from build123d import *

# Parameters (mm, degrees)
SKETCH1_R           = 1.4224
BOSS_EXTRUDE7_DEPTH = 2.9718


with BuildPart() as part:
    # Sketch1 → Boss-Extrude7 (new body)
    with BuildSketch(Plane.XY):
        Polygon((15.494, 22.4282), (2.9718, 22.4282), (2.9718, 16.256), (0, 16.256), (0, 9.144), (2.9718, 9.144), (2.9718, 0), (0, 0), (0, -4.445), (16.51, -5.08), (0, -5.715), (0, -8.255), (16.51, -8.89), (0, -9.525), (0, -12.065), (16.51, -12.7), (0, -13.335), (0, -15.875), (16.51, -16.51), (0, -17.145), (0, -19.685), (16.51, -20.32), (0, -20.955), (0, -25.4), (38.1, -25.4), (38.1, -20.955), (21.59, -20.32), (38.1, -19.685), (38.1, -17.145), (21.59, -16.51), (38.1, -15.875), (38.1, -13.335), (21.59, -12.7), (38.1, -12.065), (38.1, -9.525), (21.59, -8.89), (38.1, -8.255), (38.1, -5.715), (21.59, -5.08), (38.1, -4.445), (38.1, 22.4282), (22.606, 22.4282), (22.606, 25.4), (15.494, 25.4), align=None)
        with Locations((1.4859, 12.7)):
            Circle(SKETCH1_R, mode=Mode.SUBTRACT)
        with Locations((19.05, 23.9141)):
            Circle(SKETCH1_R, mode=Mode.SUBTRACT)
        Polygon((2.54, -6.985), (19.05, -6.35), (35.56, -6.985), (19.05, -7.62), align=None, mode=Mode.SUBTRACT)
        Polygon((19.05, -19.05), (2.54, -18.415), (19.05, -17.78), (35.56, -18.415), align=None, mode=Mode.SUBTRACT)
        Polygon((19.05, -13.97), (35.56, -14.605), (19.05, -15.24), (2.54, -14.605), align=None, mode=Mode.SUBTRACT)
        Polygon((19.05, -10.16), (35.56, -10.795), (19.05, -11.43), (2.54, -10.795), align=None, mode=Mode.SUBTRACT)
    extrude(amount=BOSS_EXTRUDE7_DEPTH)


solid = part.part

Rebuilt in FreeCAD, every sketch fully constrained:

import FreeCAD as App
import Part
import Sketcher
from FreeCAD import Vector
Q = App.Units.Quantity

doc = App.newDocument("Part")
body = doc.addObject("PartDesign::Body", "Body")

sketch1 = doc.addObject("Sketcher::SketchObject", "Sketch")
body.addObject(sketch1)
sketch1.AttachmentSupport = (doc.XY_Plane, [""])
sketch1.MapMode = "FlatFace"
sketch1.addGeometry([
    Part.LineSegment(Vector(15.5, 22.4, 0), Vector(3, 22.4, 0)),
    Part.LineSegment(Vector(3, 22.4, 0), Vector(3, 16.3, 0)),
    Part.LineSegment(Vector(3, 16.3, 0), Vector(0, 16.3, 0)),
    Part.LineSegment(Vector(0, 16.3, 0), Vector(0, 9.1, 0)),
    Part.LineSegment(Vector(0, 9.1, 0), Vector(3, 9.1, 0)),
    Part.LineSegment(Vector(3, 9.1, 0), Vector(3, 0, 0)),
    Part.LineSegment(Vector(3, 0, 0), Vector(0, 0, 0)),
    Part.LineSegment(Vector(0, 0, 0), Vector(0, -4.4, 0)),
    Part.LineSegment(Vector(0, -4.4, 0), Vector(16.5, -5.1, 0)),
    Part.LineSegment(Vector(16.5, -5.1, 0), Vector(0, -5.7, 0)),
    Part.LineSegment(Vector(0, -5.7, 0), Vector(0, -8.3, 0)),
    Part.LineSegment(Vector(0, -8.3, 0), Vector(16.5, -8.9, 0)),
    Part.LineSegment(Vector(16.5, -8.9, 0), Vector(0, -9.5, 0)),
    Part.LineSegment(Vector(0, -9.5, 0), Vector(0, -12.1, 0)),
    Part.LineSegment(Vector(0, -12.1, 0), Vector(16.5, -12.7, 0)),
    Part.LineSegment(Vector(16.5, -12.7, 0), Vector(0, -13.3, 0)),
    Part.LineSegment(Vector(0, -13.3, 0), Vector(0, -15.9, 0)),
    Part.LineSegment(Vector(0, -15.9, 0), Vector(16.5, -16.5, 0)),
    Part.LineSegment(Vector(16.5, -16.5, 0), Vector(0, -17.1, 0)),
    Part.LineSegment(Vector(0, -17.1, 0), Vector(0, -19.7, 0)),
    Part.LineSegment(Vector(0, -19.7, 0), Vector(16.5, -20.3, 0)),
    Part.LineSegment(Vector(16.5, -20.3, 0), Vector(0, -21, 0)),
    Part.LineSegment(Vector(0, -21, 0), Vector(0, -25.4, 0)),
    Part.LineSegment(Vector(0, -25.4, 0), Vector(38.1, -25.4, 0)),
    Part.LineSegment(Vector(38.1, -25.4, 0), Vector(38.1, -21, 0)),
    Part.LineSegment(Vector(38.1, -21, 0), Vector(21.6, -20.3, 0)),
    Part.LineSegment(Vector(21.6, -20.3, 0), Vector(38.1, -19.7, 0)),
    Part.LineSegment(Vector(38.1, -19.7, 0), Vector(38.1, -17.1, 0)),
    Part.LineSegment(Vector(38.1, -17.1, 0), Vector(21.6, -16.5, 0)),
    Part.LineSegment(Vector(21.6, -16.5, 0), Vector(38.1, -15.9, 0)),
    Part.LineSegment(Vector(38.1, -15.9, 0), Vector(38.1, -13.3, 0)),
    Part.LineSegment(Vector(38.1, -13.3, 0), Vector(21.6, -12.7, 0)),
    Part.LineSegment(Vector(21.6, -12.7, 0), Vector(38.1, -12.1, 0)),
    Part.LineSegment(Vector(38.1, -12.1, 0), Vector(38.1, -9.5, 0)),
    Part.LineSegment(Vector(38.1, -9.5, 0), Vector(21.6, -8.9, 0)),
    Part.LineSegment(Vector(21.6, -8.9, 0), Vector(38.1, -8.3, 0)),
    Part.LineSegment(Vector(38.1, -8.3, 0), Vector(38.1, -5.7, 0)),
    Part.LineSegment(Vector(38.1, -5.7, 0), Vector(21.6, -5.1, 0)),
    Part.LineSegment(Vector(21.6, -5.1, 0), Vector(38.1, -4.4, 0)),
    Part.LineSegment(Vector(38.1, -4.4, 0), Vector(38.1, 22.4, 0)),
    Part.LineSegment(Vector(38.1, 22.4, 0), Vector(22.6, 22.4, 0)),
    Part.LineSegment(Vector(22.6, 22.4, 0), Vector(22.6, 25.4, 0)),
    Part.LineSegment(Vector(22.6, 25.4, 0), Vector(15.5, 25.4, 0)),
    Part.LineSegment(Vector(15.5, 25.4, 0), Vector(15.5, 22.4, 0)),
    Part.LineSegment(Vector(35.6, -18.4, 0), Vector(19.1, -19.1, 0)),
    Part.LineSegment(Vector(19.1, -19.1, 0), Vector(2.5, -18.4, 0)),
    Part.LineSegment(Vector(2.5, -18.4, 0), Vector(19.1, -17.8, 0)),
    Part.LineSegment(Vector(19.1, -17.8, 0), Vector(35.6, -18.4, 0)),
    Part.LineSegment(Vector(2.5, -14.6, 0), Vector(19.1, -14, 0)),
    Part.LineSegment(Vector(19.1, -14, 0), Vector(35.6, -14.6, 0)),
    Part.LineSegment(Vector(35.6, -14.6, 0), Vector(19.1, -15.2, 0)),
    Part.LineSegment(Vector(19.1, -15.2, 0), Vector(2.5, -14.6, 0)),
    Part.LineSegment(Vector(2.5, -10.8, 0), Vector(19.1, -10.2, 0)),
    Part.LineSegment(Vector(19.1, -10.2, 0), Vector(35.6, -10.8, 0)),
    Part.LineSegment(Vector(35.6, -10.8, 0), Vector(19.1, -11.4, 0)),
    Part.LineSegment(Vector(19.1, -11.4, 0), Vector(2.5, -10.8, 0)),
    Part.LineSegment(Vector(19.1, -7.6, 0), Vector(2.5, -7, 0)),
    Part.LineSegment(Vector(2.5, -7, 0), Vector(19.1, -6.3, 0)),
    Part.LineSegment(Vector(19.1, -6.3, 0), Vector(35.6, -7, 0)),
    Part.LineSegment(Vector(35.6, -7, 0), Vector(19.1, -7.6, 0)),
    Part.Circle(Vector(1.5, 12.7, 0), Vector(0, 0, 1), 1.4),
    Part.Circle(Vector(19.1, 23.9, 0), Vector(0, 0, 1), 1.4),
], False)
sketch1.addConstraint([
    Sketcher.Constraint("Coincident", 0, 2, 1, 1),
    Sketcher.Constraint("Coincident", 1, 2, 2, 1),
    Sketcher.Constraint("Coincident", 2, 2, 3, 1),
    Sketcher.Constraint("Coincident", 3, 2, 4, 1),
    Sketcher.Constraint("Coincident", 4, 2, 5, 1),
    Sketcher.Constraint("Coincident", 5, 2, 6, 1),
    Sketcher.Constraint("Coincident", 6, 2, 7, 1),
    Sketcher.Constraint("Coincident", 7, 2, 8, 1),
    Sketcher.Constraint("Coincident", 8, 2, 9, 1),
    Sketcher.Constraint("Coincident", 9, 2, 10, 1),
    Sketcher.Constraint("Coincident", 10, 2, 11, 1),
    Sketcher.Constraint("Coincident", 11, 2, 12, 1),
    Sketcher.Constraint("Coincident", 12, 2, 13, 1),
    Sketcher.Constraint("Coincident", 13, 2, 14, 1),
    Sketcher.Constraint("Coincident", 14, 2, 15, 1),
    Sketcher.Constraint("Coincident", 15, 2, 16, 1),
    Sketcher.Constraint("Coincident", 16, 2, 17, 1),
    Sketcher.Constraint("Coincident", 17, 2, 18, 1),
    Sketcher.Constraint("Coincident", 18, 2, 19, 1),
    Sketcher.Constraint("Coincident", 19, 2, 20, 1),
    Sketcher.Constraint("Coincident", 20, 2, 21, 1),
    Sketcher.Constraint("Coincident", 21, 2, 22, 1),
    Sketcher.Constraint("Coincident", 22, 2, 23, 1),
    Sketcher.Constraint("Coincident", 23, 2, 24, 1),
    Sketcher.Constraint("Coincident", 24, 2, 25, 1),
    Sketcher.Constraint("Coincident", 25, 2, 26, 1),
    Sketcher.Constraint("Coincident", 26, 2, 27, 1),
    Sketcher.Constraint("Coincident", 27, 2, 28, 1),
    Sketcher.Constraint("Coincident", 28, 2, 29, 1),
    Sketcher.Constraint("Coincident", 29, 2, 30, 1),
    Sketcher.Constraint("Coincident", 30, 2, 31, 1),
    Sketcher.Constraint("Coincident", 31, 2, 32, 1),
    Sketcher.Constraint("Coincident", 32, 2, 33, 1),
    Sketcher.Constraint("Coincident", 33, 2, 34, 1),
    Sketcher.Constraint("Coincident", 34, 2, 35, 1),
    Sketcher.Constraint("Coincident", 35, 2, 36, 1),
    Sketcher.Constraint("Coincident", 36, 2, 37, 1),
    Sketcher.Constraint("Coincident", 37, 2, 38, 1),
    Sketcher.Constraint("Coincident", 38, 2, 39, 1),
    Sketcher.Constraint("Coincident", 39, 2, 40, 1),
    Sketcher.Constraint("Coincident", 40, 2, 41, 1),
    Sketcher.Constraint("Coincident", 41, 2, 42, 1),
    Sketcher.Constraint("Coincident", 42, 2, 43, 1),
    Sketcher.Constraint("Coincident", 43, 2, 0, 1),
    Sketcher.Constraint("Coincident", 44, 2, 45, 1),
    Sketcher.Constraint("Coincident", 45, 2, 46, 1),
    Sketcher.Constraint("Coincident", 46, 2, 47, 1),
    Sketcher.Constraint("Coincident", 47, 2, 44, 1),
    Sketcher.Constraint("Coincident", 48, 2, 49, 1),
    Sketcher.Constraint("Coincident", 49, 2, 50, 1),
    Sketcher.Constraint("Coincident", 50, 2, 51, 1),
    Sketcher.Constraint("Coincident", 51, 2, 48, 1),
    Sketcher.Constraint("Coincident", 52, 2, 53, 1),
    Sketcher.Constraint("Coincident", 53, 2, 54, 1),
    Sketcher.Constraint("Coincident", 54, 2, 55, 1),
    Sketcher.Constraint("Coincident", 55, 2, 52, 1),
    Sketcher.Constraint("Coincident", 56, 2, 57, 1),
    Sketcher.Constraint("Coincident", 57, 2, 58, 1),
    Sketcher.Constraint("Coincident", 58, 2, 59, 1),
    Sketcher.Constraint("Coincident", 59, 2, 56, 1),
    Sketcher.Constraint("Horizontal", 0),
    Sketcher.Constraint("Vertical", 1),
    Sketcher.Constraint("Horizontal", 2),
    Sketcher.Constraint("Vertical", 3),
    Sketcher.Constraint("Horizontal", 4),
    Sketcher.Constraint("Vertical", 5),
    Sketcher.Constraint("Horizontal", 6),
    Sketcher.Constraint("Vertical", 7),
    Sketcher.Constraint("Vertical", 10),
    Sketcher.Constraint("Vertical", 13),
    Sketcher.Constraint("Vertical", 16),
    Sketcher.Constraint("Vertical", 19),
    Sketcher.Constraint("Vertical", 22),
    Sketcher.Constraint("Horizontal", 23),
    Sketcher.Constraint("Vertical", 24),
    Sketcher.Constraint("Vertical", 27),
    Sketcher.Constraint("Vertical", 30),
    Sketcher.Constraint("Vertical", 33),
    Sketcher.Constraint("Vertical", 36),
    Sketcher.Constraint("Vertical", 39),
    Sketcher.Constraint("Horizontal", 40),
    Sketcher.Constraint("Vertical", 41),
    Sketcher.Constraint("Horizontal", 42),
    Sketcher.Constraint("Vertical", 43),
    Sketcher.Constraint("Coincident", 6, 2, -1, 1),
    Sketcher.Constraint("Equal", 60, 61),
    Sketcher.Constraint("PointOnObject", 2, 2, -2),
    Sketcher.Constraint("PointOnObject", 9, 2, -2),
    Sketcher.Constraint("PointOnObject", 12, 2, -2),
    Sketcher.Constraint("PointOnObject", 15, 2, -2),
    Sketcher.Constraint("PointOnObject", 18, 2, -2),
    Sketcher.Constraint("PointOnObject", 21, 2, -2),
    Sketcher.Constraint("Parallel", 8, 11),
    Sketcher.Constraint("Parallel", 9, 12),
    Sketcher.Constraint("Parallel", 11, 14),
    Sketcher.Constraint("Parallel", 12, 15),
    Sketcher.Constraint("Parallel", 14, 17),
    Sketcher.Constraint("Parallel", 15, 18),
    Sketcher.Constraint("Parallel", 17, 20),
    Sketcher.Constraint("Parallel", 18, 21),
    Sketcher.Constraint("Parallel", 20, 25),
    Sketcher.Constraint("Parallel", 21, 26),
    Sketcher.Constraint("Parallel", 25, 28),
    Sketcher.Constraint("Parallel", 26, 29),
    Sketcher.Constraint("Parallel", 28, 31),
    Sketcher.Constraint("Parallel", 29, 32),
    Sketcher.Constraint("Parallel", 31, 34),
    Sketcher.Constraint("Parallel", 32, 35),
    Sketcher.Constraint("Parallel", 34, 37),
    Sketcher.Constraint("Parallel", 35, 38),
    Sketcher.Constraint("Parallel", 38, 44),
    Sketcher.Constraint("Parallel", 37, 45),
    Sketcher.Constraint("Parallel", 44, 46),
    Sketcher.Constraint("Parallel", 45, 47),
    Sketcher.Constraint("Parallel", 46, 48),
    Sketcher.Constraint("Parallel", 47, 49),
    Sketcher.Constraint("Parallel", 48, 50),
    Sketcher.Constraint("Parallel", 49, 51),
    Sketcher.Constraint("Parallel", 50, 52),
    Sketcher.Constraint("Parallel", 51, 53),
    Sketcher.Constraint("Parallel", 52, 54),
    Sketcher.Constraint("Parallel", 53, 55),
    Sketcher.Constraint("Parallel", 55, 56),
    Sketcher.Constraint("Parallel", 54, 57),
    Sketcher.Constraint("Parallel", 56, 58),
    Sketcher.Constraint("Parallel", 57, 59),
    Sketcher.Constraint("Horizontal", 21, 2, 24, 2),
    Sketcher.Constraint("Horizontal", 20, 2, 25, 2),
    Sketcher.Constraint("Horizontal", 19, 2, 26, 2),
    Sketcher.Constraint("Horizontal", 18, 2, 27, 2),
    Sketcher.Constraint("Horizontal", 17, 2, 28, 2),
    Sketcher.Constraint("Horizontal", 16, 2, 29, 2),
    Sketcher.Constraint("Horizontal", 15, 2, 30, 2),
    Sketcher.Constraint("Horizontal", 14, 2, 31, 2),
    Sketcher.Constraint("Horizontal", 13, 2, 32, 2),
    Sketcher.Constraint("Horizontal", 12, 2, 33, 2),
    Sketcher.Constraint("Horizontal", 11, 2, 34, 2),
    Sketcher.Constraint("Horizontal", 10, 2, 35, 2),
    Sketcher.Constraint("Horizontal", 9, 2, 36, 2),
    Sketcher.Constraint("Horizontal", 8, 2, 37, 2),
    Sketcher.Constraint("Horizontal", 7, 2, 38, 2),
    Sketcher.Constraint("Horizontal", 0, 2, 39, 2),
    Sketcher.Constraint("Horizontal", 45, 2, 47, 2),
    Sketcher.Constraint("Horizontal", 49, 2, 51, 2),
    Sketcher.Constraint("Horizontal", 53, 2, 55, 2),
    Sketcher.Constraint("Horizontal", 56, 2, 58, 2),
    Sketcher.Constraint("Vertical", 1, 2, 4, 2),
    Sketcher.Constraint("Vertical", 8, 2, 11, 2),
    Sketcher.Constraint("Vertical", 11, 2, 14, 2),
    Sketcher.Constraint("Vertical", 14, 2, 17, 2),
    Sketcher.Constraint("Vertical", 17, 2, 20, 2),
    Sketcher.Constraint("Vertical", 24, 2, 26, 2),
    Sketcher.Constraint("Vertical", 61, 3, 44, 2),
    Sketcher.Constraint("Vertical", 46, 2, 48, 2),
    Sketcher.Constraint("Vertical", 47, 2, 49, 2),
    Sketcher.Constraint("Vertical", 50, 2, 52, 2),
    Sketcher.Constraint("Vertical", 49, 2, 53, 2),
    Sketcher.Constraint("Vertical", 55, 2, 56, 2),
    Sketcher.Constraint("Vertical", 54, 2, 57, 2),
    Sketcher.Constraint("Equal", 42, 3),
    Sketcher.Constraint("Equal", 10, 13),
    Sketcher.Constraint("Equal", 13, 16),
    Sketcher.Constraint("Equal", 16, 19),
    Sketcher.Constraint("Equal", 7, 22),
    Sketcher.Constraint("Equal", 6, 41),
    Sketcher.Constraint("Equal", 38, 44),
    Sketcher.Constraint("Diameter", 60, Q("0.112 in")),
    Sketcher.Constraint("DistanceX", 23, 1, 23, 2, Q("1.5 in")),
    Sketcher.Constraint("DistanceY", 10, 2, 10, 1, Q("0.1 in")),
    Sketcher.Constraint("DistanceY", 22, 2, -1, 1, Q("1 in")),
    Sketcher.Constraint("DistanceY", -1, 1, 41, 2, Q("1 in")),
    Sketcher.Constraint("DistanceX", 40, 2, 40, 1, Q("0.61 in")),
    Sketcher.Constraint("DistanceX", 42, 2, 42, 1, Q("0.28 in")),
    Sketcher.Constraint("DistanceY", 5, 2, 5, 1, Q("0.36 in")),
    Sketcher.Constraint("DistanceY", -1, 1, 60, 3, Q("0.5 in")),
    Sketcher.Constraint("DistanceY", 8, 2, -1, 1, Q("0.2 in")),
    Sketcher.Constraint("DistanceX", -1, 1, 45, 2, Q("0.1 in")),
    Sketcher.Constraint("DistanceY", 46, 2, -1, 1, Q("0.7 in")),
    Sketcher.Constraint("DistanceX", -1, 1, 47, 2, Q("1.4 in")),
    Sketcher.Constraint("DistanceY", 50, 2, -1, 1, Q("0.6 in")),
    Sketcher.Constraint("DistanceY", 52, 2, -1, 1, Q("0.4 in")),
    Sketcher.Constraint("DistanceY", 59, 2, -1, 1, Q("0.3 in")),
    Sketcher.Constraint("DistanceX", 0, 2, 0, 1, Q("0.493 in")),
    Sketcher.Constraint("DistanceX", -1, 1, 60, 3, Q("0.0585 in")),
    Sketcher.Constraint("DistanceY", -1, 1, 61, 3, Q("0.9415 in")),
])
pad1 = doc.addObject("PartDesign::Pad", "Pad")
body.addObject(pad1)
pad1.Profile = sketch1
pad1.Length = Q("0.117 in")

doc.recompute()
